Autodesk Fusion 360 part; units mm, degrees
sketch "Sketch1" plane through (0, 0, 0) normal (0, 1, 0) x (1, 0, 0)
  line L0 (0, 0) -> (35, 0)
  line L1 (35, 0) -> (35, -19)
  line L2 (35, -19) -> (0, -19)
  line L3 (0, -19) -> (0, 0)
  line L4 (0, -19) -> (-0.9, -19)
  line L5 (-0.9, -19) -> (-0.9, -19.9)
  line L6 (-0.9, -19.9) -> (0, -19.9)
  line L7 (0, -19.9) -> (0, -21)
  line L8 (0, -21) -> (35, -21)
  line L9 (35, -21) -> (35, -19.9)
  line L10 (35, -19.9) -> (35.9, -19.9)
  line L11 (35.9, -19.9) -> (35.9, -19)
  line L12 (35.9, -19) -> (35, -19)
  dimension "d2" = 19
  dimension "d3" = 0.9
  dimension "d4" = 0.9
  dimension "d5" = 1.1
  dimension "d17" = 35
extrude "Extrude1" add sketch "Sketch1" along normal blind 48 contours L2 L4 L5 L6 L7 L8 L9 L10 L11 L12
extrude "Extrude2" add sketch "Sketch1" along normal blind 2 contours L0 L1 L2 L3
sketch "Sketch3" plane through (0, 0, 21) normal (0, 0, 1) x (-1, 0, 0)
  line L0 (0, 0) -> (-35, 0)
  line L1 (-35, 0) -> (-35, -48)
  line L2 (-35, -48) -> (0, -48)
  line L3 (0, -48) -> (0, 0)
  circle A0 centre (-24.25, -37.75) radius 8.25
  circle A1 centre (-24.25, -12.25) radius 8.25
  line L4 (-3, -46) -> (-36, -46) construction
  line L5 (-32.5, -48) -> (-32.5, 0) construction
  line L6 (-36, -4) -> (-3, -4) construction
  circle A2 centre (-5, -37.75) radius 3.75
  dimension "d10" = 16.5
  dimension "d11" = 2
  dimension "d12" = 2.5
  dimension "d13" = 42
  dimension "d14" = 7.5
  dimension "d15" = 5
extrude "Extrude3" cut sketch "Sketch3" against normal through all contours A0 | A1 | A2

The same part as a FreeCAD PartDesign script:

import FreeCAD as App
import Part
import Sketcher
from FreeCAD import Vector
Q = App.Units.Quantity


def add_polygon(sketch, points):
    """Adds a closed chain of lines whose ends are joined by coincident constraints."""
    first, n = sketch.GeometryCount, len(points)
    for a, b in zip(points, points[1:] + points[:1]):
        sketch.addGeometry(Part.LineSegment(App.Vector(*a, 0), App.Vector(*b, 0)), False)
    for i in range(n):
        sketch.addConstraint(Sketcher.Constraint("Coincident", first + i, 2, first + (i + 1) % n, 1))

doc = App.newDocument("Part")
body = doc.addObject("PartDesign::Body", "Body")

# Sketch on XZ plane
sketch1 = body.newObject("Sketcher::SketchObject", "Sketch")
sketch1.AttachmentSupport = (doc.getObject("XZ_Plane"), [""])
sketch1.MapMode = "FlatFace"
add_polygon(sketch1, [(35.9, 19), (-0.9, 19), (-0.9, 19.9), (0, 19.9), (0, 21), (35, 21), (35, 19.9), (35.9, 19.9)])  # lines 0-7
sketch1.addConstraint([
    Sketcher.Constraint("Horizontal", 0),
    Sketcher.Constraint("Vertical", 1),
    Sketcher.Constraint("Horizontal", 2),
    Sketcher.Constraint("Vertical", 3),
    Sketcher.Constraint("Horizontal", 4),
    Sketcher.Constraint("Vertical", 5),
    Sketcher.Constraint("Horizontal", 6),
    Sketcher.Constraint("Vertical", 7),
    Sketcher.Constraint("PointOnObject", 2, 2, -2),
    Sketcher.Constraint("Horizontal", 2, 2, 5, 2),
    Sketcher.Constraint("Equal", 2, 6),
    Sketcher.Constraint("Equal", 6, 1),
    Sketcher.Constraint("DistanceX", 4, 1, 4, 2, Q("35 mm")),
    Sketcher.Constraint("DistanceX", 2, 1, 2, 2, Q("0.9 mm")),
    Sketcher.Constraint("DistanceY", 3, 1, 3, 2, Q("1.1 mm")),
    Sketcher.Constraint("DistanceY", -1, 1, 0, 2, Q("19 mm")),
])
pad1 = body.newObject("PartDesign::Pad", "Pad")
pad1.Profile = sketch1
pad1.Length = 48
pad1.Reversed = True

# Sketch on XZ plane
sketch2 = body.newObject("Sketcher::SketchObject", "Sketch001")
sketch2.AttachmentSupport = (doc.getObject("XZ_Plane"), [""])
sketch2.MapMode = "FlatFace"
add_polygon(sketch2, [(35, 0), (0, 0), (0, 19), (35, 19)])  # lines 0-3
sketch2.addConstraint([
    Sketcher.Constraint("Horizontal", 0),
    Sketcher.Constraint("Vertical", 1),
    Sketcher.Constraint("Horizontal", 2),
    Sketcher.Constraint("Vertical", 3),
    Sketcher.Constraint("Coincident", 0, 2, -1, 1),
    Sketcher.Constraint("DistanceX", 0, 2, 0, 1, Q("35 mm")),
    Sketcher.Constraint("DistanceY", 1, 1, 1, 2, Q("19 mm")),
])
pad2 = body.newObject("PartDesign::Pad", "Pad001")
pad2.Profile = sketch2
pad2.Length = 2
pad2.Reversed = True

# Sketch on XY plane
sketch3 = body.newObject("Sketcher::SketchObject", "Sketch002")
sketch3.AttachmentSupport = (doc.getObject("XY_Plane"), [""])
sketch3.MapMode = "FlatFace"
sketch3.AttachmentOffset = App.Placement(Vector(0, 0, 21), App.Rotation())
sketch3.addGeometry([
    Part.Circle(Vector(24.2, 37.8, 0), Vector(0, 0, 1), 8.2),
    Part.Circle(Vector(24.2, 12.2, 0), Vector(0, 0, 1), 8.2),
    Part.Circle(Vector(5, 37.8, 0), Vector(0, 0, 1), 3.8),
], False)
sketch3.addConstraint([
    Sketcher.Constraint("Equal", 0, 1),
    Sketcher.Constraint("Horizontal", 0, 3, 2, 3),
    Sketcher.Constraint("Vertical", 0, 3, 1, 3),
    Sketcher.Constraint("Diameter", 0, Q("16.5 mm")),
    Sketcher.Constraint("Diameter", 2, Q("7.5 mm")),
    Sketcher.Constraint("DistanceX", -1, 1, 2, 3, Q("5 mm")),
    Sketcher.Constraint("DistanceY", 1, 3, 0, 3, Q("25.5 mm")),
    Sketcher.Constraint("DistanceX", -1, 1, 0, 3, Q("24.25 mm")),
    Sketcher.Constraint("DistanceY", -1, 1, 0, 3, Q("37.75 mm")),
])
pocket1 = body.newObject("PartDesign::Pocket", "Pocket")
pocket1.Profile = sketch3
pocket1.Type = "ThroughAll"

doc.recompute()
